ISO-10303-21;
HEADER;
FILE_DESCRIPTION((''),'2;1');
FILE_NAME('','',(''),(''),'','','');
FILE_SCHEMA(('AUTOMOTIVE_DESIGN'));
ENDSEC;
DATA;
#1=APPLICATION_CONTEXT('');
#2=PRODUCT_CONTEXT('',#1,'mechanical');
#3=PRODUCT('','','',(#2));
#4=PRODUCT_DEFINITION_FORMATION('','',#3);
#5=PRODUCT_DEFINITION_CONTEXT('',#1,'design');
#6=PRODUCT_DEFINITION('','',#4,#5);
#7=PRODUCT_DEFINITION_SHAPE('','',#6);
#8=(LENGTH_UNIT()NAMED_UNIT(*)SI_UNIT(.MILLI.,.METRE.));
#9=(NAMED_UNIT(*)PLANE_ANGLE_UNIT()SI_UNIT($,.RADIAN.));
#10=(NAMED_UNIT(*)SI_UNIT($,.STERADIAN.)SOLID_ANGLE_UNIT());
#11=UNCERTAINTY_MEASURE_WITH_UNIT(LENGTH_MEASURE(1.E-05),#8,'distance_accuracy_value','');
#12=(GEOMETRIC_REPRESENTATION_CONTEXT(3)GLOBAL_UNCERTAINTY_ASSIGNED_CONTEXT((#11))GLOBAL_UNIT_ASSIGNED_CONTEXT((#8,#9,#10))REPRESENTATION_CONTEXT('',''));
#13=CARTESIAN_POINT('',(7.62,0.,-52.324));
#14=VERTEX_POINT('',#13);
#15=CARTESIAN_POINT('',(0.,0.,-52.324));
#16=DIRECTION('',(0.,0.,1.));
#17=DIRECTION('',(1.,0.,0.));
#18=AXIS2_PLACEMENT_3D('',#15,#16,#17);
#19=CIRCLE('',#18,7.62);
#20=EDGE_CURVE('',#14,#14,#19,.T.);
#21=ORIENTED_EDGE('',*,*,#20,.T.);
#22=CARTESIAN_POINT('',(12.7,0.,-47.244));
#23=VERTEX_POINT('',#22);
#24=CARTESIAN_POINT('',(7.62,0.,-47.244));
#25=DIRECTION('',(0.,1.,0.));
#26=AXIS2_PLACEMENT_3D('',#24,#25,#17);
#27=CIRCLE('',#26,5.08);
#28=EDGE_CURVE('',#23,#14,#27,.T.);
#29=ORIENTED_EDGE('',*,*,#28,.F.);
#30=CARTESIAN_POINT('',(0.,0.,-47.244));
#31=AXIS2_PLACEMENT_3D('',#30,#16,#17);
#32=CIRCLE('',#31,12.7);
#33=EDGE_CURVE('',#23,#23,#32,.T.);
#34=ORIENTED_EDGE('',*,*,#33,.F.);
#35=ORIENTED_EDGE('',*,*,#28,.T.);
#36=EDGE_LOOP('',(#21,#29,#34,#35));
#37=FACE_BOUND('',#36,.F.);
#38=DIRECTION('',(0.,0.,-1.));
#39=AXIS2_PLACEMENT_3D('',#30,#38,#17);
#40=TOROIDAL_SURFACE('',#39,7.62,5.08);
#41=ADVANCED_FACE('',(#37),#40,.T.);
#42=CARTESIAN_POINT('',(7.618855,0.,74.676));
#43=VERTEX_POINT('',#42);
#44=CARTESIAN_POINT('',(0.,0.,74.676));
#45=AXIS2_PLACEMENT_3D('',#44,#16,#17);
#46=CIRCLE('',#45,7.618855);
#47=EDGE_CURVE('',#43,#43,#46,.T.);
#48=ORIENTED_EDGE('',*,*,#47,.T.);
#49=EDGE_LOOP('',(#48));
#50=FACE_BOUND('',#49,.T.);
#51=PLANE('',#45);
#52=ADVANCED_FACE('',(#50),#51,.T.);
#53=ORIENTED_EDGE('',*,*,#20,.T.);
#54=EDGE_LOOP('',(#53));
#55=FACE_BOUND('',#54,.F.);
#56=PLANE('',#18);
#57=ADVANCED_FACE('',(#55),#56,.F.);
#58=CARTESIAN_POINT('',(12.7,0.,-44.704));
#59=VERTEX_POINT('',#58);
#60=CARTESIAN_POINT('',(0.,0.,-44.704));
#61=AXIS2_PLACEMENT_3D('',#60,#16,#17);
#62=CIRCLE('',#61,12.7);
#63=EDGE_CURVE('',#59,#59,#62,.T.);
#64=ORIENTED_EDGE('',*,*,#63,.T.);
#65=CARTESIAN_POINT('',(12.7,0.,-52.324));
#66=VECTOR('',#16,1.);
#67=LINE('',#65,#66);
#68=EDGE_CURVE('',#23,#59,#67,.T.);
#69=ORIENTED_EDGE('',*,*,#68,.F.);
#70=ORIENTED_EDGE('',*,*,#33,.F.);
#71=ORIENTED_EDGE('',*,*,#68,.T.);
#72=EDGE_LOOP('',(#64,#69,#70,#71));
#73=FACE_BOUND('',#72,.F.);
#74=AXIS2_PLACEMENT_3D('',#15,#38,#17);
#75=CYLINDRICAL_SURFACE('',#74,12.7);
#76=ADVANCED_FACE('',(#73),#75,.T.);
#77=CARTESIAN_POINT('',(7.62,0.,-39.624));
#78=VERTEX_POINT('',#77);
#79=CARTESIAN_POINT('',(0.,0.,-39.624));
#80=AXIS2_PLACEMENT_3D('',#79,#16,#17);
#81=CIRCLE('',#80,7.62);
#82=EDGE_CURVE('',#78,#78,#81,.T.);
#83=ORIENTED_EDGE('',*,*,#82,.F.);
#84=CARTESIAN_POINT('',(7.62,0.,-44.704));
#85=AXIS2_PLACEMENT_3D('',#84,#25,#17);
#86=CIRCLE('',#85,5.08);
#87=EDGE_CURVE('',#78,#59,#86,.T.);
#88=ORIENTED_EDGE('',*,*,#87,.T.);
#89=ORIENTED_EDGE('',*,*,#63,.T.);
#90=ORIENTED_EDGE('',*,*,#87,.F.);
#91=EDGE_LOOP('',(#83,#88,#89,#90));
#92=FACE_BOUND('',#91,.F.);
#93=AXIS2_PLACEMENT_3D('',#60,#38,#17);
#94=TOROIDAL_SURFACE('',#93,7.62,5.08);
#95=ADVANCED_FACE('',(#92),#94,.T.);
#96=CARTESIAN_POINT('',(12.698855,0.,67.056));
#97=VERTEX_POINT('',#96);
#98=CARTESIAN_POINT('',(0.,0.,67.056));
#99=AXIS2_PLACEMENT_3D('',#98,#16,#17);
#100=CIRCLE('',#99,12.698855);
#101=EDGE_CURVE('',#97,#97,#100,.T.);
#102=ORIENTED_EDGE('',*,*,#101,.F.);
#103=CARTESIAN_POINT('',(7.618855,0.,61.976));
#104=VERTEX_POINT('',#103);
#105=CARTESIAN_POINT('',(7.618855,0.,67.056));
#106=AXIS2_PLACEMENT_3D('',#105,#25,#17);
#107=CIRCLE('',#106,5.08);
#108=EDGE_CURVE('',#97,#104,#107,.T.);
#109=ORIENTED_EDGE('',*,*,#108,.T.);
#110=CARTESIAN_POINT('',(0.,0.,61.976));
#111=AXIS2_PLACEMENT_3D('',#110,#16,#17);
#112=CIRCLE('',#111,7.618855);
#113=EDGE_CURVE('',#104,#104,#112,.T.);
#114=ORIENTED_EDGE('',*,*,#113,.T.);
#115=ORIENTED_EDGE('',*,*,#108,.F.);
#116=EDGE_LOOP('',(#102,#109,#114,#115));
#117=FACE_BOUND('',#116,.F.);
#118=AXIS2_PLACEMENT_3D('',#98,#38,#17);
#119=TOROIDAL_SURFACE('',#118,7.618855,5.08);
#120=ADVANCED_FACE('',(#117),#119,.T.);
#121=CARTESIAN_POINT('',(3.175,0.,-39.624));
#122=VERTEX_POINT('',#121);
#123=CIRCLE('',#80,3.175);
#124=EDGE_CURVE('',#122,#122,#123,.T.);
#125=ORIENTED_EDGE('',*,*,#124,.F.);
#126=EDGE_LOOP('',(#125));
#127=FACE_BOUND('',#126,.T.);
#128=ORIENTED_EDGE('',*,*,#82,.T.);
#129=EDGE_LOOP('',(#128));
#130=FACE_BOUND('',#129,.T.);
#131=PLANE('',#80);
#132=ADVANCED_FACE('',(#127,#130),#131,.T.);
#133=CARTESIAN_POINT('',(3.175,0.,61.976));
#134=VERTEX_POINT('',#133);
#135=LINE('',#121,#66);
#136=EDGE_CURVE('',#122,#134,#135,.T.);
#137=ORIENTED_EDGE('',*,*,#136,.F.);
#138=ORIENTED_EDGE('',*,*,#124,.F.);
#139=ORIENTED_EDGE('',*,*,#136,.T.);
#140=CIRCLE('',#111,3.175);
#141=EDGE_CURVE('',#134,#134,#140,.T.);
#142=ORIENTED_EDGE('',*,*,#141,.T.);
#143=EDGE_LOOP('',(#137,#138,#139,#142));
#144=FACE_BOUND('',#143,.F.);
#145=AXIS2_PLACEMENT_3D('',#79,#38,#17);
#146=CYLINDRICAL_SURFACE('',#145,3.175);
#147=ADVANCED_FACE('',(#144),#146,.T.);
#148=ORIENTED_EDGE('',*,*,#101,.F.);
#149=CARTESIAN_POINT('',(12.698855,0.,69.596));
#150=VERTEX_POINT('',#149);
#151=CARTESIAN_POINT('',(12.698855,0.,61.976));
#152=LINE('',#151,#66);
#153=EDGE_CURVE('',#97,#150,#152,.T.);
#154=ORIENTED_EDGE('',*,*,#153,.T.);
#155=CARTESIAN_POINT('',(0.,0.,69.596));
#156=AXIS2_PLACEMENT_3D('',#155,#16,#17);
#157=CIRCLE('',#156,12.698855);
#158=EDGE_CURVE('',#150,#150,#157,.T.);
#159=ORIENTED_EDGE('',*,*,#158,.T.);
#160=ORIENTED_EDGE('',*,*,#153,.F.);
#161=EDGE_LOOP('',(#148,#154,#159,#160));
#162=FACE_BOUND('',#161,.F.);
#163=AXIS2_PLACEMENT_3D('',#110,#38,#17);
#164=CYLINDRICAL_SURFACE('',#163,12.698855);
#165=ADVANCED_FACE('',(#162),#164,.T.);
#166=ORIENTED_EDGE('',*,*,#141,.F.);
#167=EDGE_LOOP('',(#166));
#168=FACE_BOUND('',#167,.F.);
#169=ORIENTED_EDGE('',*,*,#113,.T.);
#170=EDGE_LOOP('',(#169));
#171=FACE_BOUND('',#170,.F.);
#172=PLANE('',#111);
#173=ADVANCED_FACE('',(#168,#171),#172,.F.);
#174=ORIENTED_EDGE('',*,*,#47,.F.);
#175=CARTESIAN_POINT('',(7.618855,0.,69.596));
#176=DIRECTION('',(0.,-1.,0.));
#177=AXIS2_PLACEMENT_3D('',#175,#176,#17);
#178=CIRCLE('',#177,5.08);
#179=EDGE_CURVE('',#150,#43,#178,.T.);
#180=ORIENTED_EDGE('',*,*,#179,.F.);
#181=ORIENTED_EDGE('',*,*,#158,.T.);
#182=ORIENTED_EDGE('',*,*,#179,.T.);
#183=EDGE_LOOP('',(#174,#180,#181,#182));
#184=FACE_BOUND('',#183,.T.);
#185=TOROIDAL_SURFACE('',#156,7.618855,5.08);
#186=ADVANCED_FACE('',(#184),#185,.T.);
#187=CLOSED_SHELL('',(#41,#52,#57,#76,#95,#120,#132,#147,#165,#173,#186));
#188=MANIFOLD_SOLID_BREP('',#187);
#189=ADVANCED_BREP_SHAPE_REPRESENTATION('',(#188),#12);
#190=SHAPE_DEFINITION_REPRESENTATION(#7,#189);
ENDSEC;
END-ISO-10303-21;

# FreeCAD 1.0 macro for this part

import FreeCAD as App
import Part
import Sketcher

V = App.Vector
Q = App.Units.Quantity


def edges_at(feature, points):
    """Names of the edges that pass closest to the given points."""
    edges = feature.Shape.Edges
    near = lambda p: min(range(len(edges)), key=lambda i: edges[i].distToShape(Part.Vertex(*p))[0])
    return sorted({f"Edge{near(p) + 1}" for p in points})

doc = App.newDocument("Part")
body = doc.addObject("PartDesign::Body", "Body")

# Sketch on XY plane
sketch1 = doc.addObject("Sketcher::SketchObject", "Sketch")
body.addObject(sketch1)
sketch1.AttachmentSupport = (doc.XY_Plane, [""])
sketch1.MapMode = "FlatFace"
sketch1.addGeometry(Part.Circle(V(0, 0, 0), V(0, 0, 1), 13), False)
sketch1.addConstraint(Sketcher.Constraint("Coincident", 0, 3, -1, 1))
sketch1.addConstraint(Sketcher.Constraint("Diameter", 0, Q("1 in")))
pad1 = doc.addObject("PartDesign::Pad", "Pad")
body.addObject(pad1)
pad1.Profile = sketch1
pad1.Length = Q("0.5 in")

# Sketch on XY plane
sketch2 = doc.addObject("Sketcher::SketchObject", "Sketch001")
body.addObject(sketch2)
sketch2.AttachmentSupport = (doc.XY_Plane, [""])
sketch2.MapMode = "FlatFace"
sketch2.AttachmentOffset = App.Placement(V(0, 0, 0.5 * 25.4), App.Rotation())
sketch2.addGeometry(Part.Circle(V(0, 0, 0), V(0, 0, 1), 3.2), False)
sketch2.addConstraint(Sketcher.Constraint("Coincident", 0, 3, -1, 1))
sketch2.addConstraint(Sketcher.Constraint("Diameter", 0, Q("0.25 in")))
pad2 = doc.addObject("PartDesign::Pad", "Pad001")
body.addObject(pad2)
pad2.Profile = sketch2
pad2.Length = Q("4 in")

# Sketch on XY plane
sketch3 = doc.addObject("Sketcher::SketchObject", "Sketch002")
body.addObject(sketch3)
sketch3.AttachmentSupport = (doc.XY_Plane, [""])
sketch3.MapMode = "FlatFace"
sketch3.AttachmentOffset = App.Placement(V(0, 0, 4.5 * 25.4), App.Rotation())
sketch3.addGeometry(Part.Circle(V(0, 0, 0), V(0, 0, 1), 13), False)
sketch3.addConstraint(Sketcher.Constraint("Coincident", 0, 3, -1, 1))
sketch3.addConstraint(Sketcher.Constraint("Diameter", 0, 25.397709))
pad3 = doc.addObject("PartDesign::Pad", "Pad002")
body.addObject(pad3)
pad3.Profile = sketch3
pad3.Length = Q("0.5 in")
doc.recompute()

fillet = doc.addObject("PartDesign::Fillet", "Fillet")
body.addObject(fillet)
fillet.Base = (pad3, edges_at(pad3, [
    (-12.7, 0, 12.7),
    (-12.7, 0, 0),
    (-12.699, 0, 127),
    (-12.699, 0, 114.3),
]))
fillet.Radius = Q("0.2 in")
body2 = doc.addObject("PartDesign::Body", "Body001")
doc.recompute()

body.Placement = App.Placement(V(0, 0, -52.324), App.Rotation(V(0, 0, 1), 0))
boolean = doc.addObject("PartDesign::Boolean", "Boolean")
body2.addObject(boolean)
boolean.Type = "Fuse"
boolean.addObjects([body])

doc.recompute()
